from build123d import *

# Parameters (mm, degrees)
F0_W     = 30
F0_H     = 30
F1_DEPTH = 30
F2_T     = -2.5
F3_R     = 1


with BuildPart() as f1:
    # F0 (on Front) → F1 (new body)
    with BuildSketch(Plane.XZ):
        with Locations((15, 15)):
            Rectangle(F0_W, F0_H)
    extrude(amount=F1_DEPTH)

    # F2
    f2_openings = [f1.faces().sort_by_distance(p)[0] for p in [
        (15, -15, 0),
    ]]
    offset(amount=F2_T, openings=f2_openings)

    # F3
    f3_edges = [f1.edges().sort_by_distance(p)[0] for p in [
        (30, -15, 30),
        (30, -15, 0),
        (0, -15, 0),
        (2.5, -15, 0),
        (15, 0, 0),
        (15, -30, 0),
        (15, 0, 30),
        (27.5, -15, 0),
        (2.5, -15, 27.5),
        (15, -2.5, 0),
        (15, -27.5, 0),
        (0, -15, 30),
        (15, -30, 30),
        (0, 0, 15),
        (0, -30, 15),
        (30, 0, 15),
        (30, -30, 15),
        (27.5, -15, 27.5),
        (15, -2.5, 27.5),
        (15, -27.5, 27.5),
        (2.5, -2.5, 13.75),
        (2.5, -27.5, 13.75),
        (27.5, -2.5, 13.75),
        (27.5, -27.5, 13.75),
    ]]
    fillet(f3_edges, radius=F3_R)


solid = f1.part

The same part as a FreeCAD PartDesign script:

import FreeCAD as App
import Part
import Sketcher


def faces_at(feature, points):
    """Names of the faces that lie closest to the given points."""
    faces = feature.Shape.Faces
    near = lambda p: min(range(len(faces)), key=lambda i: faces[i].distToShape(Part.Vertex(*p))[0])
    return sorted({f"Face{near(p) + 1}" for p in points})

doc = App.newDocument("Part")
params = doc.addObject("Spreadsheet::Sheet", "Params")
for row, (alias, value) in enumerate([
    ("sketch1_width", "30 mm"),
    ("pad1_length", "30 mm"),
    ("thickness_wall", "2.5 mm"),
    ("fillet_radius", "1 mm"),
], start=1):
    params.set(f"A{row}", alias)
    params.set(f"B{row}", "=" + value)
    params.setAlias(f"B{row}", alias)

body = doc.addObject("PartDesign::Body", "Body")

sketch1 = body.newObject("Sketcher::SketchObject", "Sketch")
sketch1.AttachmentSupport = (doc.getObject("XZ_Plane"), [""])
sketch1.MapMode = "FlatFace"
sketch1.addGeometry([
    Part.LineSegment(App.Vector(0, 30, 0), App.Vector(0, 0, 0)),
    Part.LineSegment(App.Vector(0, 0, 0), App.Vector(30, 0, 0)),
    Part.LineSegment(App.Vector(30, 0, 0), App.Vector(30, 30, 0)),
    Part.LineSegment(App.Vector(30, 30, 0), App.Vector(0, 30, 0)),
], False)
sketch1.addConstraint([
    Sketcher.Constraint("Coincident", 0, 2, 1, 1),
    Sketcher.Constraint("Coincident", 1, 2, 2, 1),
    Sketcher.Constraint("Coincident", 2, 2, 3, 1),
    Sketcher.Constraint("Coincident", 3, 2, 0, 1),
    Sketcher.Constraint("Vertical", 0),
    Sketcher.Constraint("Horizontal", 1),
    Sketcher.Constraint("Vertical", 2),
    Sketcher.Constraint("Horizontal", 3),
    Sketcher.Constraint("Coincident", 0, 2, -1, 1),
    Sketcher.Constraint("Equal", 3, 0),
    Sketcher.Constraint("DistanceX", 1, 1, 1, 2, 30.0),
])
sketch1.setExpression("Constraints[10]", "Params.sketch1_width")
pad1 = body.newObject("PartDesign::Pad", "Pad")
pad1.Profile = sketch1
pad1.setExpression("Length", "Params.pad1_length")
doc.recompute()

thickness = body.newObject("PartDesign::Thickness", "Thickness")
thickness.Base = (pad1, faces_at(pad1, [(15, -15, 0)]))
thickness.setExpression("Value", "Params.thickness_wall")
thickness.Reversed = True
thickness.Join = "Arc"
doc.recompute()

fillet = body.newObject("PartDesign::Fillet", "Fillet")
fillet.Base = (thickness, ["Edge1"])
fillet.UseAllEdges = True
fillet.setExpression("Radius", "Params.fillet_radius")

doc.recompute()
